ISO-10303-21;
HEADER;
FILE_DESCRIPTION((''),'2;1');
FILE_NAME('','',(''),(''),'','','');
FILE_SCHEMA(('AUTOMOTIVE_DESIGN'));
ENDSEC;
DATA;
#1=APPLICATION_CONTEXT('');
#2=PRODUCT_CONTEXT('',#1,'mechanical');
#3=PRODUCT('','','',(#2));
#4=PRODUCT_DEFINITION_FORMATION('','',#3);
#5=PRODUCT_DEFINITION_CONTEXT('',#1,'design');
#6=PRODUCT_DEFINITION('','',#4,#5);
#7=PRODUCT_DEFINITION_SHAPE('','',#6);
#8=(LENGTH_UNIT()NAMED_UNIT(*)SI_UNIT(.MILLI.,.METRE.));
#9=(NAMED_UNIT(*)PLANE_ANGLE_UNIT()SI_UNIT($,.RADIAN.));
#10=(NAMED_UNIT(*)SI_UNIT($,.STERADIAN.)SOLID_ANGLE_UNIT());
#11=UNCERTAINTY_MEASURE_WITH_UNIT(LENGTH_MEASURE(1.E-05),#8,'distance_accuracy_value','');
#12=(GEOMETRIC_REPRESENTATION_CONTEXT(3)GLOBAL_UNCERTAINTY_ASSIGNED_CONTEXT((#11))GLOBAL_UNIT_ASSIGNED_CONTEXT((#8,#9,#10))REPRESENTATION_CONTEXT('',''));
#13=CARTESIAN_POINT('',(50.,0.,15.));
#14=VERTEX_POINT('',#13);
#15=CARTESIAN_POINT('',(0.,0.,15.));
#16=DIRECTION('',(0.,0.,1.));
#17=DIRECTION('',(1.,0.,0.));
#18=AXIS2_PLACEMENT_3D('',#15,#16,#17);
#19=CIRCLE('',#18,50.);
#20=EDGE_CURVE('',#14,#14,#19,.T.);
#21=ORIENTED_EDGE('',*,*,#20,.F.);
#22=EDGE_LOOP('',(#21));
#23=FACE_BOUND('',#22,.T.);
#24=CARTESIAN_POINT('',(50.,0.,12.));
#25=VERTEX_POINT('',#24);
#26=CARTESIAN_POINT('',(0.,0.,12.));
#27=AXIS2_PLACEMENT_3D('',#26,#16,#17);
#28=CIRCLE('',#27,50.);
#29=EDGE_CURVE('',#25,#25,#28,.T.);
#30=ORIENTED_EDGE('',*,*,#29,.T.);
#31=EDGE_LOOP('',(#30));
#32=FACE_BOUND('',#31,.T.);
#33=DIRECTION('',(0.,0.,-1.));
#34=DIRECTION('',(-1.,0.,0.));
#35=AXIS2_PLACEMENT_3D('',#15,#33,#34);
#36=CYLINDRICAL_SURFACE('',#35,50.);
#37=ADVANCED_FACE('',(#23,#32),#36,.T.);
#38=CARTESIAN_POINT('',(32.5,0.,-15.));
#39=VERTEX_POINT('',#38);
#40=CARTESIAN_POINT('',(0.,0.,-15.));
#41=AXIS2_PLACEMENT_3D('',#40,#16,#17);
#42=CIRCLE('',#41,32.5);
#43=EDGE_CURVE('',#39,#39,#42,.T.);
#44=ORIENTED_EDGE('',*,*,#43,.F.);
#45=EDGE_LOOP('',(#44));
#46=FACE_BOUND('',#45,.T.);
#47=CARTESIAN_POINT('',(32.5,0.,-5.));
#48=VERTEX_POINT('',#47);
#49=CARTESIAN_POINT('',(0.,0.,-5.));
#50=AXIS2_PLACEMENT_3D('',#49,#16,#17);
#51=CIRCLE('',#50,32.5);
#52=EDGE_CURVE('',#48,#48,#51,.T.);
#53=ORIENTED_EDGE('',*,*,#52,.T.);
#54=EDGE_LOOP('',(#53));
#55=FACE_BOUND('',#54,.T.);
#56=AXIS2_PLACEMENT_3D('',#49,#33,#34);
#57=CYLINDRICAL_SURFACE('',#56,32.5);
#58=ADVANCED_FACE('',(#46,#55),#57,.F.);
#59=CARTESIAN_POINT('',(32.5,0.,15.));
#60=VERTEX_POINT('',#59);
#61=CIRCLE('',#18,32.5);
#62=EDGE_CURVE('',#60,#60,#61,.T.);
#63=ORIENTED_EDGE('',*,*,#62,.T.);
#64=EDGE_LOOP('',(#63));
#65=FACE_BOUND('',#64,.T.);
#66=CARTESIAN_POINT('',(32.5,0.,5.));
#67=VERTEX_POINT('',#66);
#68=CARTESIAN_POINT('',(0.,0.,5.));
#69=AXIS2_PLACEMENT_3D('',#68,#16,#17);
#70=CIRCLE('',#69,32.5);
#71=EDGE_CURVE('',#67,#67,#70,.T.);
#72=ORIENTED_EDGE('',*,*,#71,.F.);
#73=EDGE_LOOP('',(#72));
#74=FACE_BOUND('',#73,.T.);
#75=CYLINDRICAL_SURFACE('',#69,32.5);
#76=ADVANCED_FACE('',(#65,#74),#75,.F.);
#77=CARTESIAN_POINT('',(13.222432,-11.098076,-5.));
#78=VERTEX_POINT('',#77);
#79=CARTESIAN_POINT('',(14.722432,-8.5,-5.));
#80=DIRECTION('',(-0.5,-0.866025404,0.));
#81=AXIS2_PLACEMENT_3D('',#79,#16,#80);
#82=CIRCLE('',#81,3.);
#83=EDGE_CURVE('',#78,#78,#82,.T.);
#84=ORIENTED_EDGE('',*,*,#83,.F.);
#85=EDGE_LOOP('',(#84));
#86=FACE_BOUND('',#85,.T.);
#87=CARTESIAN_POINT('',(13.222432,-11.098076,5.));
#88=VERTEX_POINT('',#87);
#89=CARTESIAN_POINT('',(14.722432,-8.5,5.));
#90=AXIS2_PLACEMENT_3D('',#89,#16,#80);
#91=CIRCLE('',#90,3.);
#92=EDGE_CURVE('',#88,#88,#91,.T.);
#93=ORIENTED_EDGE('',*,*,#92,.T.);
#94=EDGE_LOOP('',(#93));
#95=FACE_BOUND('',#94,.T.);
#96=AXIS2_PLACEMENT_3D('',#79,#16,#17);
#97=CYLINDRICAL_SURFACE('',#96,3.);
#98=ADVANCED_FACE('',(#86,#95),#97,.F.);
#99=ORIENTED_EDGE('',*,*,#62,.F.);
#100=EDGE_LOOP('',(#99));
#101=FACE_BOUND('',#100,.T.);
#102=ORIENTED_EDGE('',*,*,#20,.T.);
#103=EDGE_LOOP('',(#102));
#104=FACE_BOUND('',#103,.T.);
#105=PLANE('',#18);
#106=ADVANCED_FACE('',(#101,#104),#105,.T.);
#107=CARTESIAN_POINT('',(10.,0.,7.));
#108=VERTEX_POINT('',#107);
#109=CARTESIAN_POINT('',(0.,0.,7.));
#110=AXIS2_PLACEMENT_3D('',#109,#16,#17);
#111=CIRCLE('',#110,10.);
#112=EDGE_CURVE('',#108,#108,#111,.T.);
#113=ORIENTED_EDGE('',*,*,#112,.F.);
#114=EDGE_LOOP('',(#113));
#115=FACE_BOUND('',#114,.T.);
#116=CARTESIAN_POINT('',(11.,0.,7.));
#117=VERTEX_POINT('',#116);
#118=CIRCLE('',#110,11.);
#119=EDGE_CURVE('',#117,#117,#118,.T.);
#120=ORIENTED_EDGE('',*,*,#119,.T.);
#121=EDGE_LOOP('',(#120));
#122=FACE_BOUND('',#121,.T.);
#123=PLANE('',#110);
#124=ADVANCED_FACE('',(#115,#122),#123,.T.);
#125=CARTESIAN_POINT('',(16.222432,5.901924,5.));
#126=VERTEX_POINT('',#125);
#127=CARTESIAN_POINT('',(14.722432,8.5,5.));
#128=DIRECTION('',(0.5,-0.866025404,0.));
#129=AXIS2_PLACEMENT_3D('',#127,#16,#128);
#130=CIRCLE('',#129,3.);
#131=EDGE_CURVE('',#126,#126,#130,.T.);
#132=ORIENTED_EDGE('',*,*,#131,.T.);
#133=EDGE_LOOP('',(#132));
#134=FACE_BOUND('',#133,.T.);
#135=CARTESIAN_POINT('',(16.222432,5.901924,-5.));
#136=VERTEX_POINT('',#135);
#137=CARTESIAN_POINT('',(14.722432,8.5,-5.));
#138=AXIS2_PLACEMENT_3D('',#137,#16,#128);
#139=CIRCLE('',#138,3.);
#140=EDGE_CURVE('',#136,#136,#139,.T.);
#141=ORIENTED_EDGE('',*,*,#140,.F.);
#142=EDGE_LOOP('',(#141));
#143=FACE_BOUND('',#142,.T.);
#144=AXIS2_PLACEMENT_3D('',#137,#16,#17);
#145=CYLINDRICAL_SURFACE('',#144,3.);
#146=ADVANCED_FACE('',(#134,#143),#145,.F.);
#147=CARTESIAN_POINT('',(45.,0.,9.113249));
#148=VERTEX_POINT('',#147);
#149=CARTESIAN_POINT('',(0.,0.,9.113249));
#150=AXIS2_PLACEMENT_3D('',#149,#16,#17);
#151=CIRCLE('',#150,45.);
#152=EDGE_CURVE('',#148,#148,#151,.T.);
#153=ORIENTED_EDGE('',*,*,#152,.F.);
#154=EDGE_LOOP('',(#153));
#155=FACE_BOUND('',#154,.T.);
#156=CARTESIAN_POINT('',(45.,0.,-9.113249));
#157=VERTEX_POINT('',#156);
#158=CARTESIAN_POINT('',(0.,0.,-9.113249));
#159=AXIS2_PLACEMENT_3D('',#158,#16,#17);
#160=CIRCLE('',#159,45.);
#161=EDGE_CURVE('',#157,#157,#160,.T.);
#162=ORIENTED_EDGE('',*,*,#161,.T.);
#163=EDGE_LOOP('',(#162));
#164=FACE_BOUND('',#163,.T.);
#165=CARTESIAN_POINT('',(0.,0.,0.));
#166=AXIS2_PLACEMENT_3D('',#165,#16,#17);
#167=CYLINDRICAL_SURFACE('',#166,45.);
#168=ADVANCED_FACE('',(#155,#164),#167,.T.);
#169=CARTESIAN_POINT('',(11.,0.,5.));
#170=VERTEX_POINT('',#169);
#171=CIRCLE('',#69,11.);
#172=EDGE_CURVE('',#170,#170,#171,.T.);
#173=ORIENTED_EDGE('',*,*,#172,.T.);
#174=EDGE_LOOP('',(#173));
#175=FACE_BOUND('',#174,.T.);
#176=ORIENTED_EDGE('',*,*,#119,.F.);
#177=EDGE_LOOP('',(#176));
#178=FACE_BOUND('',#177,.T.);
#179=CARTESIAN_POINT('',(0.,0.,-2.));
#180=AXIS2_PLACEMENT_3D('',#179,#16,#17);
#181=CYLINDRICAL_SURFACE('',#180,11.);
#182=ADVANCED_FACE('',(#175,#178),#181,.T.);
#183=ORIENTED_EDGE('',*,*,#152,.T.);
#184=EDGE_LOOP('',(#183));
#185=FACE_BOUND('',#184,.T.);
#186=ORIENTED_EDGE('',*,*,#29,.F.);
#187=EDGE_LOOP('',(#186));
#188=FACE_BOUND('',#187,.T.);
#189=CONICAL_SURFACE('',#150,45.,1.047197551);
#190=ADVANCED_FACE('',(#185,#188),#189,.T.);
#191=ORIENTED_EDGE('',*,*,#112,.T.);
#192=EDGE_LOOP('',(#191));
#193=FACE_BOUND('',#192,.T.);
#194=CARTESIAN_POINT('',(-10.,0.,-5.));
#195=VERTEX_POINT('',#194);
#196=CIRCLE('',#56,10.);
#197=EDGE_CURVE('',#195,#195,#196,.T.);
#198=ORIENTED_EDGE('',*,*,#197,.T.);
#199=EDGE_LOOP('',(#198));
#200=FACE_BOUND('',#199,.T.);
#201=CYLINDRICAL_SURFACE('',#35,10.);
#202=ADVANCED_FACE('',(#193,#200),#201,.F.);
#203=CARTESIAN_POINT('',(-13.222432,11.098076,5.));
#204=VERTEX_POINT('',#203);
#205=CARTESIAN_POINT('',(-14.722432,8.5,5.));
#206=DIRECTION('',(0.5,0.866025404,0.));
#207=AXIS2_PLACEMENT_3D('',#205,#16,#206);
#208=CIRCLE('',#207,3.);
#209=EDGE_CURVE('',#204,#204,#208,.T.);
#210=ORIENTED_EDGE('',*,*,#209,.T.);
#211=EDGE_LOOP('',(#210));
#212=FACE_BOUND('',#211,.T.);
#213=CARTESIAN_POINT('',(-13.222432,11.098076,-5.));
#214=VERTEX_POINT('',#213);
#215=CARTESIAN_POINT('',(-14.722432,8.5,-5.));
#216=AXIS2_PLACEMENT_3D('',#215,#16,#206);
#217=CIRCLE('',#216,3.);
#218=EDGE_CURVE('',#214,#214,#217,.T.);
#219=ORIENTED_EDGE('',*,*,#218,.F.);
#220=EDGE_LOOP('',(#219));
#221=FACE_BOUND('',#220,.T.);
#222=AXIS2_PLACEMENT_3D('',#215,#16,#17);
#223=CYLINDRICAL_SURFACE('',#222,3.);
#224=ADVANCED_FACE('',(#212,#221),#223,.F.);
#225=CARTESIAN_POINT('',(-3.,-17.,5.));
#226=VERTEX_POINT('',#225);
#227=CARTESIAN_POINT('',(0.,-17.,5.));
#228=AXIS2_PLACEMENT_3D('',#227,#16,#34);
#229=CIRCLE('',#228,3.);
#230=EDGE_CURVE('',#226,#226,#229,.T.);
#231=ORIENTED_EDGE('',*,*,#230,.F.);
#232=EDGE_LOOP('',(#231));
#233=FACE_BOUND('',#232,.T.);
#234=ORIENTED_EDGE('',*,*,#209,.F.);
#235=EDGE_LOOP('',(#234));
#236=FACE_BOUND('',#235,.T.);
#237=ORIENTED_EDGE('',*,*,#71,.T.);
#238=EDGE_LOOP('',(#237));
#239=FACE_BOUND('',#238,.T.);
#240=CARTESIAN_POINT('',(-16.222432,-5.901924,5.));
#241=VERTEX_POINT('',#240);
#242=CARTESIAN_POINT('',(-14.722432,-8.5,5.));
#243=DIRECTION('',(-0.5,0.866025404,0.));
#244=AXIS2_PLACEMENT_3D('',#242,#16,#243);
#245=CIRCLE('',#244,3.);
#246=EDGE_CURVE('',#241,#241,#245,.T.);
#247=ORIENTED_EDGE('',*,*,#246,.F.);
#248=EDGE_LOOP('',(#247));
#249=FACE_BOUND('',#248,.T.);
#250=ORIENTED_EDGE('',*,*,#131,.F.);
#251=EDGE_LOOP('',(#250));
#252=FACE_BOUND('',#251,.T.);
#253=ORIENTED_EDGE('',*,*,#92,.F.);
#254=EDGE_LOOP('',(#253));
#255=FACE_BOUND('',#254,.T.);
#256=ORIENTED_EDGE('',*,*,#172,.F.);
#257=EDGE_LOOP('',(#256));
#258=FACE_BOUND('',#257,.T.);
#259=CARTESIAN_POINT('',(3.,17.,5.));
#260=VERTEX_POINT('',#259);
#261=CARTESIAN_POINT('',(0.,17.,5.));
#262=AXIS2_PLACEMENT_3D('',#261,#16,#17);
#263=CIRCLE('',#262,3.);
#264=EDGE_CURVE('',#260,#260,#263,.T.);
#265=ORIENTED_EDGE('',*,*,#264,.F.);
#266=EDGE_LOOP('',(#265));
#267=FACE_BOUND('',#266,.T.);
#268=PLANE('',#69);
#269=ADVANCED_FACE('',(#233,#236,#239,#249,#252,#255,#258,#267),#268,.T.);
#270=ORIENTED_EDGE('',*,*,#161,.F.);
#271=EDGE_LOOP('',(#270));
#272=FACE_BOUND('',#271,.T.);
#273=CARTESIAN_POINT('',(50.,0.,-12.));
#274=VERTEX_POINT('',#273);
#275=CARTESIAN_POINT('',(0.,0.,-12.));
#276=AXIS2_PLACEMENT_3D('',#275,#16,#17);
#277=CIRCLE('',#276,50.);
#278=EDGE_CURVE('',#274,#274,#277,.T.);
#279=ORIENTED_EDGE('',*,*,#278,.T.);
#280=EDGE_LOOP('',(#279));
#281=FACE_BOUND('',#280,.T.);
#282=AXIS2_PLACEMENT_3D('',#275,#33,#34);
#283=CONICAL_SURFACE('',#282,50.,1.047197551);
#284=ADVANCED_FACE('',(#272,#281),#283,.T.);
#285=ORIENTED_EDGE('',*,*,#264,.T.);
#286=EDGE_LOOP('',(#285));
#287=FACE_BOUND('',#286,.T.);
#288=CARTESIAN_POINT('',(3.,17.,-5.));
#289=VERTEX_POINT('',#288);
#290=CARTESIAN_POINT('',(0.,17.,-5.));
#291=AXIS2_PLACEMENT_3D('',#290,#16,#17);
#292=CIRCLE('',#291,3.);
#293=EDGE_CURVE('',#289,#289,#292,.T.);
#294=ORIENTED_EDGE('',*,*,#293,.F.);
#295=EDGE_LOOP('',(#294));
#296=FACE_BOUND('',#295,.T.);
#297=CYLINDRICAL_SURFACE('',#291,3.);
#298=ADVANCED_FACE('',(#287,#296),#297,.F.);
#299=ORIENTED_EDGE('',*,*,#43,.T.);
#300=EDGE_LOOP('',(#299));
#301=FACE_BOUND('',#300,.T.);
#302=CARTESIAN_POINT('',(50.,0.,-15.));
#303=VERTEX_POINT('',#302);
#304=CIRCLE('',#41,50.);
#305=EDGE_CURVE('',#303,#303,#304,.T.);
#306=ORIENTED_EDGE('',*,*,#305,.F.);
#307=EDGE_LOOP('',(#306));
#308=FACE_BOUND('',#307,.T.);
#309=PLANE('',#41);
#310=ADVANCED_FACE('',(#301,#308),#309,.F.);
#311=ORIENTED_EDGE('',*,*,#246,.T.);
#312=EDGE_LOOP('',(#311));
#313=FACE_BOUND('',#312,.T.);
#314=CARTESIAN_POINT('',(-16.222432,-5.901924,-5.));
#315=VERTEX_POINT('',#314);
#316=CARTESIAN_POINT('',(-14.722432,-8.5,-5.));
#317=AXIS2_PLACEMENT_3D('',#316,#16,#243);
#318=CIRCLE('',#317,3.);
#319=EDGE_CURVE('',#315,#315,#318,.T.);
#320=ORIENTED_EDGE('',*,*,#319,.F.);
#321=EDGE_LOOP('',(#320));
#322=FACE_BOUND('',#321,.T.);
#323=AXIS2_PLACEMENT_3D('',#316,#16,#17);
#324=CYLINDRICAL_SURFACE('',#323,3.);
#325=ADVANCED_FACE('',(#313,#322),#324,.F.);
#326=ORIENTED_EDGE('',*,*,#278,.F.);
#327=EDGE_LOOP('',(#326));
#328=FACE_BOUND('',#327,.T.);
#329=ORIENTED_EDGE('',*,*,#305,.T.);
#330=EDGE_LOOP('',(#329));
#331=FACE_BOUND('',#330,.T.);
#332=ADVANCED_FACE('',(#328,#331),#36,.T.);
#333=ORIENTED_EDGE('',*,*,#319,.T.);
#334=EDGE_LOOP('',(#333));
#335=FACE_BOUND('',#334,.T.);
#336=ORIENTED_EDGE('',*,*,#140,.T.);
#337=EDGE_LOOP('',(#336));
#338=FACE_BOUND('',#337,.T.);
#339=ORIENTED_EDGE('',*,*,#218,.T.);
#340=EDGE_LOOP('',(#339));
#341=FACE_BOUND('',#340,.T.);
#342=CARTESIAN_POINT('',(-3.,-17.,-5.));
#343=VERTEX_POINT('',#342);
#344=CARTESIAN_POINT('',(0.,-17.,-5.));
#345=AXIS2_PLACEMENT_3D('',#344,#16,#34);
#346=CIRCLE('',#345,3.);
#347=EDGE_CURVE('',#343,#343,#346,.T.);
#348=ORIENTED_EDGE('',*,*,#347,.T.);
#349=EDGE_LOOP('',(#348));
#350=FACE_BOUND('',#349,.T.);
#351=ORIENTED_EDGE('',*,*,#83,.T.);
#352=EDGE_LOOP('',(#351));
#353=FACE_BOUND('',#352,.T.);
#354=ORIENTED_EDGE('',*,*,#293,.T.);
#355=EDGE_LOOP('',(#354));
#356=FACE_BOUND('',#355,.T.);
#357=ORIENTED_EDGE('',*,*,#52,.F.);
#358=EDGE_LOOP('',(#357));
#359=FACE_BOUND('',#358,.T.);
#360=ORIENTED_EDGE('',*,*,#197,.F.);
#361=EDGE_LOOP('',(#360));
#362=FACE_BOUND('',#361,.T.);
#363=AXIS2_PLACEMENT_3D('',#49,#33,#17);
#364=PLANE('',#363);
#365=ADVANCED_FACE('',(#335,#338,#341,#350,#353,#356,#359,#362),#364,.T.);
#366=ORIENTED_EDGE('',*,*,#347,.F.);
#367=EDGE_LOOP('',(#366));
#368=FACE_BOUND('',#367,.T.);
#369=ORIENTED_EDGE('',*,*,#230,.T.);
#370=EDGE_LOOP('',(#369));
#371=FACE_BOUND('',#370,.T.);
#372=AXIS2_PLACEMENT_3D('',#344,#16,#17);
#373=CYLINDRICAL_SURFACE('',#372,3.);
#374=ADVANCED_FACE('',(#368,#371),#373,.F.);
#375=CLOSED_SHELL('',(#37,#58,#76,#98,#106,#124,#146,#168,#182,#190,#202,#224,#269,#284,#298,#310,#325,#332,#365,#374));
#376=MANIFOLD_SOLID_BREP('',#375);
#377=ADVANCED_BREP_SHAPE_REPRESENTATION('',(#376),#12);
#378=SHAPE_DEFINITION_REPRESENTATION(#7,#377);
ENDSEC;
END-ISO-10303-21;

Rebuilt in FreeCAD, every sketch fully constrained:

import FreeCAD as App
import Part
import Sketcher
from FreeCAD import Vector
Q = App.Units.Quantity


def add_polygon(sketch, points):
    """Adds a closed chain of lines whose ends are joined by coincident constraints."""
    first, n = sketch.GeometryCount, len(points)
    for a, b in zip(points, points[1:] + points[:1]):
        sketch.addGeometry(Part.LineSegment(App.Vector(*a, 0), App.Vector(*b, 0)), False)
    for i in range(n):
        sketch.addConstraint(Sketcher.Constraint("Coincident", first + i, 2, first + (i + 1) % n, 1))

doc = App.newDocument("Part")
body = doc.addObject("PartDesign::Body", "Body")

# Sketch on XY plane
sketch1 = body.newObject("Sketcher::SketchObject", "Sketch")
sketch1.AttachmentSupport = (doc.getObject("XY_Plane"), [""])
sketch1.MapMode = "FlatFace"
sketch1.addGeometry([
    Part.Circle(Vector(0, 0, 0), Vector(0, 0, 1), 50),
    Part.Circle(Vector(0, 0, 0), Vector(0, 0, 1), 10),
], False)
sketch1.addConstraint([
    Sketcher.Constraint("Coincident", 0, 3, -1, 1),
    Sketcher.Constraint("Coincident", 1, 3, -1, 1),
    Sketcher.Constraint("Diameter", 0, Q("100 mm")),
    Sketcher.Constraint("Diameter", 1, Q("20 mm")),
])
pad1 = body.newObject("PartDesign::Pad", "Pad")
pad1.Profile = sketch1
pad1.Length = 30
pad1.Midplane = True

# Sketch on XY plane
sketch2 = body.newObject("Sketcher::SketchObject", "Sketch001")
sketch2.AttachmentSupport = (doc.getObject("XY_Plane"), [""])
sketch2.MapMode = "FlatFace"
sketch2.AttachmentOffset = App.Placement(Vector(0, 0, 15), App.Rotation())
sketch2.addGeometry(Part.Circle(Vector(0, 0, 0), Vector(0, 0, 1), 32), False)
sketch2.addConstraint([
    Sketcher.Constraint("Coincident", 0, 3, -1, 1),
    Sketcher.Constraint("Diameter", 0, Q("65 mm")),
])
pocket1 = body.newObject("PartDesign::Pocket", "Pocket")
pocket1.Profile = sketch2
pocket1.Length = 10
doc.recompute()

mirrored = body.newObject("PartDesign::Mirrored", "Mirrored")
mirrored.Originals = [pocket1]
mirrored.MirrorPlane = (doc.getObject("XY_Plane"), [""])
body.Tip = mirrored

# Sketch on XY plane
sketch3 = body.newObject("Sketcher::SketchObject", "Sketch002")
sketch3.AttachmentSupport = (doc.getObject("XY_Plane"), [""])
sketch3.MapMode = "FlatFace"
sketch3.AttachmentOffset = App.Placement(Vector(0, 0, 5), App.Rotation())
sketch3.addGeometry(Part.Circle(Vector(0, 17, 0), Vector(0, 0, 1), 3), False)
sketch3.addConstraint([
    Sketcher.Constraint("PointOnObject", 0, 3, -2),
    Sketcher.Constraint("Diameter", 0, Q("6 mm")),
    Sketcher.Constraint("DistanceY", -1, 1, 0, 3, Q("17 mm")),
])
pocket2 = body.newObject("PartDesign::Pocket", "Pocket001")
pocket2.Profile = sketch3
pocket2.Length = 10
doc.recompute()

polarpattern = body.newObject("PartDesign::PolarPattern", "PolarPattern")
polarpattern.Originals = [pocket2]
polarpattern.Axis = (doc.getObject("Z_Axis"), [""])
polarpattern.Angle = 360
polarpattern.Occurrences = 6
body.Tip = polarpattern

# Sketch on XY plane
sketch4 = body.newObject("Sketcher::SketchObject", "Sketch003")
sketch4.AttachmentSupport = (doc.getObject("XY_Plane"), [""])
sketch4.MapMode = "FlatFace"
sketch4.AttachmentOffset = App.Placement(Vector(0, 0, 5), App.Rotation())
sketch4.addGeometry([
    Part.Circle(Vector(0, 0, 0), Vector(0, 0, 1), 11),
    Part.Circle(Vector(0, 0, 0), Vector(0, 0, 1), 10),
], False)
sketch4.addConstraint([
    Sketcher.Constraint("Coincident", 0, 3, -1, 1),
    Sketcher.Constraint("Coincident", 1, 3, -1, 1),
    Sketcher.Constraint("Diameter", 0, Q("22 mm")),
    Sketcher.Constraint("Diameter", 1, Q("20 mm")),
])
pad2 = body.newObject("PartDesign::Pad", "Pad001")
pad2.Profile = sketch4
pad2.Type = "TwoLengths"
pad2.Length = 2
pad2.Length2 = 7

# Sketch on XZ plane
sketch5 = body.newObject("Sketcher::SketchObject", "Sketch004")
sketch5.AttachmentSupport = (doc.getObject("XZ_Plane"), [""])
sketch5.MapMode = "FlatFace"
add_polygon(sketch5, [(50, -12), (45, -9), (45, 9), (50, 12)])  # lines 0-3
sketch5.addConstraint([
    Sketcher.Constraint("Vertical", 1),
    Sketcher.Constraint("Vertical", 3),
    Sketcher.Constraint("Equal", 0, 2),
    Sketcher.Constraint("DistanceY", 3, 2, 3, 1, Q("24 mm")),
    Sketcher.Constraint("Angle", 0, Q("150 deg")),
    Sketcher.Constraint("DistanceX", -1, 1, 0, 2, Q("45 mm")),
    Sketcher.Constraint("DistanceX", -1, 1, 2, 2, Q("50 mm")),
    Sketcher.Constraint("DistanceY", -1, 1, 2, 2, Q("12 mm")),
])
groove = body.newObject("PartDesign::Groove", "Groove")
groove.Profile = sketch5
groove.ReferenceAxis = (sketch5, ["V_Axis"])
groove.Angle = 360

doc.recompute()
